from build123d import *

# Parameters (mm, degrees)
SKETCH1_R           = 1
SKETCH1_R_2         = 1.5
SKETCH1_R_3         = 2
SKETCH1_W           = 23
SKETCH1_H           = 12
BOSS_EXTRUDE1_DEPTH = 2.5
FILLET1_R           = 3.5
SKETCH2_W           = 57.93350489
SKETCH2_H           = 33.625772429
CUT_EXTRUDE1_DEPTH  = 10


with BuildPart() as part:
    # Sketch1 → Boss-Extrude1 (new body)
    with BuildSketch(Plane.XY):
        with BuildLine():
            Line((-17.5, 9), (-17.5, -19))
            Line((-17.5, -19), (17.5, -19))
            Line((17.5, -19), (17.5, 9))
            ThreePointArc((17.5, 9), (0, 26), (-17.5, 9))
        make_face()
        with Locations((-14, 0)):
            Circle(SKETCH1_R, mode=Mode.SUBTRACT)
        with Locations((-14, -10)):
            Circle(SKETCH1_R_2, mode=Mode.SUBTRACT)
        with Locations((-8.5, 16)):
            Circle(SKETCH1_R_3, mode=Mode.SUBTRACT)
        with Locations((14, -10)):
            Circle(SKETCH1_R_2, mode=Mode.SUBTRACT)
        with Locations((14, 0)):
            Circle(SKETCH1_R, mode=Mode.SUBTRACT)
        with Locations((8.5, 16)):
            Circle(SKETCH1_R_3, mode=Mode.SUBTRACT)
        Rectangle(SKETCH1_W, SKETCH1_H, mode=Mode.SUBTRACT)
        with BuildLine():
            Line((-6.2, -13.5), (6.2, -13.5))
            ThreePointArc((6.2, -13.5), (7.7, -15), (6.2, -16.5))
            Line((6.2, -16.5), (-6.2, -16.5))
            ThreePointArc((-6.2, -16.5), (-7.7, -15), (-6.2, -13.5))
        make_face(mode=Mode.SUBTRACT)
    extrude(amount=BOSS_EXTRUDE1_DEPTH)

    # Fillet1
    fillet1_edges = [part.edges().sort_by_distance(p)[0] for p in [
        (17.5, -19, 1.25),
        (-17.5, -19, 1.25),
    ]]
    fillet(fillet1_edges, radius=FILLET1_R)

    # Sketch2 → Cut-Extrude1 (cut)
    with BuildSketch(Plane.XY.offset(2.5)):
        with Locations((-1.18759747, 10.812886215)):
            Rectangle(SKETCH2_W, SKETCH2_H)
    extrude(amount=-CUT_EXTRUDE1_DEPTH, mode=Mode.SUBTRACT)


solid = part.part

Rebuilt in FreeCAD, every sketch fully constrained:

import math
import FreeCAD as App
import Part
import Sketcher

V = App.Vector


def edges_at(feature, points):
    """Names of the edges that pass closest to the given points."""
    edges = feature.Shape.Edges
    near = lambda p: min(range(len(edges)), key=lambda i: edges[i].distToShape(Part.Vertex(*p))[0])
    return sorted({f"Edge{near(p) + 1}" for p in points})

doc = App.newDocument("Part")
params = doc.addObject("Spreadsheet::Sheet", "Params")
for row, (alias, value) in enumerate([
    ("sketch1_diameter", "3 mm"),
    ("sketch1_diameter2", "2 mm"),
    ("sketch1_diameter3", "4 mm"),
    ("sketch1_width", "35 mm"),
    ("sketch1_width2", "23 mm"),
    ("pad1_length", "2.5 mm"),
    ("fillet_radius", "3.5 mm"),
    ("pocket1_length", "10 mm"),
], start=1):
    params.set(f"A{row}", alias)
    params.set(f"B{row}", "=" + value)
    params.setAlias(f"B{row}", alias)

body = doc.addObject("PartDesign::Body", "Body")

sketch1 = body.newObject("Sketcher::SketchObject", "Sketch")
sketch1.AttachmentSupport = (doc.getObject("XY_Plane"), [""])
sketch1.MapMode = "FlatFace"
sketch1.addGeometry([
    Part.LineSegment(V(-17.5, 9, 0), V(-17.5, -19, 0)),
    Part.LineSegment(V(-17.5, -19, 0), V(17.5, -19, 0)),
    Part.LineSegment(V(17.5, -19, 0), V(17.5, 9, 0)),
    Part.ArcOfCircle(Part.Circle(V(0, 8.492647, 0), V(0, 0, 1), 17.507353), math.radians(1.660631), math.radians(178.339369)),
    Part.Circle(V(-14, -10, 0), V(0, 0, 1), 1.5),
    Part.Circle(V(-14, 0, 0), V(0, 0, 1), 1),
    Part.ArcOfCircle(Part.Circle(V(-6.2, -15, 0), V(0, 0, 1), 1.5), math.radians(90), math.radians(270)),
    Part.LineSegment(V(-6.2, -13.5, 0), V(6.2, -13.5, 0)),
    Part.ArcOfCircle(Part.Circle(V(6.2, -15, 0), V(0, 0, 1), 1.5), math.radians(-90), math.radians(90)),
    Part.LineSegment(V(6.2, -16.5, 0), V(-6.2, -16.5, 0)),
    Part.Circle(V(14, -10, 0), V(0, 0, 1), 1.5),
    Part.LineSegment(V(11.5, -6, 0), V(-11.5, -6, 0)),
    Part.LineSegment(V(-11.5, -6, 0), V(-11.5, 6, 0)),
    Part.LineSegment(V(-11.5, 6, 0), V(11.5, 6, 0)),
    Part.LineSegment(V(11.5, 6, 0), V(11.5, -6, 0)),
    Part.Circle(V(14, 0, 0), V(0, 0, 1), 1),
    Part.Circle(V(-8.5, 16, 0), V(0, 0, 1), 2),
    Part.Circle(V(8.5, 16, 0), V(0, 0, 1), 2),
], False)
sketch1.addConstraint([
    Sketcher.Constraint("Coincident", 0, 2, 1, 1),
    Sketcher.Constraint("Coincident", 1, 2, 2, 1),
    Sketcher.Constraint("Coincident", 2, 2, 3, 1),
    Sketcher.Constraint("Coincident", 3, 2, 0, 1),
    Sketcher.Constraint("Tangent", 6, 1, 7, 1),
    Sketcher.Constraint("Tangent", 7, 2, 8, 2),
    Sketcher.Constraint("Tangent", 8, 1, 9, 1),
    Sketcher.Constraint("Tangent", 9, 2, 6, 2),
    Sketcher.Constraint("Coincident", 11, 2, 12, 1),
    Sketcher.Constraint("Coincident", 12, 2, 13, 1),
    Sketcher.Constraint("Coincident", 13, 2, 14, 1),
    Sketcher.Constraint("Coincident", 14, 2, 11, 1),
    Sketcher.Constraint("Vertical", 0),
    Sketcher.Constraint("Horizontal", 1),
    Sketcher.Constraint("Vertical", 2),
    Sketcher.Constraint("Horizontal", 7),
    Sketcher.Constraint("Horizontal", 9),
    Sketcher.Constraint("Horizontal", 11),
    Sketcher.Constraint("Vertical", 12),
    Sketcher.Constraint("Horizontal", 13),
    Sketcher.Constraint("Vertical", 14),
    Sketcher.Constraint("Equal", 4, 6),
    Sketcher.Constraint("Equal", 8, 10),
    Sketcher.Constraint("Equal", 5, 15),
    Sketcher.Constraint("Equal", 16, 17),
    Sketcher.Constraint("Symmetric", 5, 3, 15, 3, -1, 1),
    Sketcher.Constraint("Symmetric", 11, 2, 13, 2, -1, 1),
    Sketcher.Constraint("Symmetric", 4, 3, 10, 3, -2),
    Sketcher.Constraint("Symmetric", 16, 3, 17, 3, -2),
    Sketcher.Constraint("Symmetric", 2, 2, 3, 2, -2),
    Sketcher.Constraint("PointOnObject", 5, 3, -1),
    Sketcher.Constraint("Vertical", 4, 3, 5, 3),
    Sketcher.Constraint("Diameter", 4, 3.0),
    Sketcher.Constraint("Diameter", 5, 2.0),
    Sketcher.Constraint("Diameter", 16, 4.0),
    Sketcher.Constraint("DistanceX", 1, 1, 1, 2, 35.0),
    Sketcher.Constraint("DistanceX", 11, 2, 11, 1, 23.0),
    Sketcher.Constraint("DistanceY", 0, 2, 0, 1, 28.0),
    Sketcher.Constraint("DistanceY", 12, 1, 12, 2, 12.0),
    Sketcher.Constraint("DistanceX", 7, 1, 7, 2, 12.4),
    Sketcher.Constraint("DistanceX", 4, 3, -1, 1, 14.0),
    Sketcher.Constraint("DistanceY", 4, 3, -1, 1, 10.0),
    Sketcher.Constraint("DistanceY", 6, 3, -1, 1, 15.0),
    Sketcher.Constraint("DistanceY", -1, 1, 16, 3, 16.0),
    Sketcher.Constraint("DistanceY", 0, 2, -1, 1, 19.0),
    Sketcher.Constraint("DistanceX", 16, 3, 17, 3, 17.0),
    Sketcher.Constraint("DistanceX", 6, 3, -1, 1, 6.2),
    Sketcher.Constraint("Radius", 3, 17.507353),
])
sketch1.setExpression("Constraints[32]", "Params.sketch1_diameter")
sketch1.setExpression("Constraints[33]", "Params.sketch1_diameter2")
sketch1.setExpression("Constraints[34]", "Params.sketch1_diameter3")
sketch1.setExpression("Constraints[35]", "Params.sketch1_width")
sketch1.setExpression("Constraints[36]", "Params.sketch1_width2")
pad1 = body.newObject("PartDesign::Pad", "Pad")
pad1.Profile = sketch1
pad1.setExpression("Length", "Params.pad1_length")
doc.recompute()

fillet = body.newObject("PartDesign::Fillet", "Fillet")
fillet.Base = (pad1, edges_at(pad1, [(17.5, -19, 1.25), (-17.5, -19, 1.25)]))
fillet.setExpression("Radius", "Params.fillet_radius")

sketch2 = body.newObject("Sketcher::SketchObject", "Sketch001")
sketch2.AttachmentSupport = (doc.getObject("XY_Plane"), [""])
sketch2.MapMode = "FlatFace"
sketch2.AttachmentOffset = App.Placement(V(0, 0, 2.5), App.Rotation())
sketch2.addGeometry([
    Part.LineSegment(V(-30.15435, 27.625772, 0), V(-30.15435, -6, 0)),
    Part.LineSegment(V(-30.15435, -6, 0), V(27.779155, -6, 0)),
    Part.LineSegment(V(27.779155, -6, 0), V(27.779155, 27.625772, 0)),
    Part.LineSegment(V(27.779155, 27.625772, 0), V(-30.15435, 27.625772, 0)),
], False)
sketch2.addConstraint([
    Sketcher.Constraint("Coincident", 0, 2, 1, 1),
    Sketcher.Constraint("Coincident", 1, 2, 2, 1),
    Sketcher.Constraint("Coincident", 2, 2, 3, 1),
    Sketcher.Constraint("Coincident", 3, 2, 0, 1),
    Sketcher.Constraint("Vertical", 0),
    Sketcher.Constraint("Horizontal", 1),
    Sketcher.Constraint("Vertical", 2),
    Sketcher.Constraint("Horizontal", 3),
    Sketcher.Constraint("DistanceY", 0, 2, -1, 1, 6.0),
    Sketcher.Constraint("DistanceX", 1, 1, 1, 2, 57.933505),
    Sketcher.Constraint("DistanceY", 0, 2, 0, 1, 33.625772),
    Sketcher.Constraint("DistanceX", 0, 2, -1, 1, 30.15435),
])
pocket1 = body.newObject("PartDesign::Pocket", "Pocket")
pocket1.Profile = sketch2
pocket1.setExpression("Length", "Params.pocket1_length")

doc.recompute()
